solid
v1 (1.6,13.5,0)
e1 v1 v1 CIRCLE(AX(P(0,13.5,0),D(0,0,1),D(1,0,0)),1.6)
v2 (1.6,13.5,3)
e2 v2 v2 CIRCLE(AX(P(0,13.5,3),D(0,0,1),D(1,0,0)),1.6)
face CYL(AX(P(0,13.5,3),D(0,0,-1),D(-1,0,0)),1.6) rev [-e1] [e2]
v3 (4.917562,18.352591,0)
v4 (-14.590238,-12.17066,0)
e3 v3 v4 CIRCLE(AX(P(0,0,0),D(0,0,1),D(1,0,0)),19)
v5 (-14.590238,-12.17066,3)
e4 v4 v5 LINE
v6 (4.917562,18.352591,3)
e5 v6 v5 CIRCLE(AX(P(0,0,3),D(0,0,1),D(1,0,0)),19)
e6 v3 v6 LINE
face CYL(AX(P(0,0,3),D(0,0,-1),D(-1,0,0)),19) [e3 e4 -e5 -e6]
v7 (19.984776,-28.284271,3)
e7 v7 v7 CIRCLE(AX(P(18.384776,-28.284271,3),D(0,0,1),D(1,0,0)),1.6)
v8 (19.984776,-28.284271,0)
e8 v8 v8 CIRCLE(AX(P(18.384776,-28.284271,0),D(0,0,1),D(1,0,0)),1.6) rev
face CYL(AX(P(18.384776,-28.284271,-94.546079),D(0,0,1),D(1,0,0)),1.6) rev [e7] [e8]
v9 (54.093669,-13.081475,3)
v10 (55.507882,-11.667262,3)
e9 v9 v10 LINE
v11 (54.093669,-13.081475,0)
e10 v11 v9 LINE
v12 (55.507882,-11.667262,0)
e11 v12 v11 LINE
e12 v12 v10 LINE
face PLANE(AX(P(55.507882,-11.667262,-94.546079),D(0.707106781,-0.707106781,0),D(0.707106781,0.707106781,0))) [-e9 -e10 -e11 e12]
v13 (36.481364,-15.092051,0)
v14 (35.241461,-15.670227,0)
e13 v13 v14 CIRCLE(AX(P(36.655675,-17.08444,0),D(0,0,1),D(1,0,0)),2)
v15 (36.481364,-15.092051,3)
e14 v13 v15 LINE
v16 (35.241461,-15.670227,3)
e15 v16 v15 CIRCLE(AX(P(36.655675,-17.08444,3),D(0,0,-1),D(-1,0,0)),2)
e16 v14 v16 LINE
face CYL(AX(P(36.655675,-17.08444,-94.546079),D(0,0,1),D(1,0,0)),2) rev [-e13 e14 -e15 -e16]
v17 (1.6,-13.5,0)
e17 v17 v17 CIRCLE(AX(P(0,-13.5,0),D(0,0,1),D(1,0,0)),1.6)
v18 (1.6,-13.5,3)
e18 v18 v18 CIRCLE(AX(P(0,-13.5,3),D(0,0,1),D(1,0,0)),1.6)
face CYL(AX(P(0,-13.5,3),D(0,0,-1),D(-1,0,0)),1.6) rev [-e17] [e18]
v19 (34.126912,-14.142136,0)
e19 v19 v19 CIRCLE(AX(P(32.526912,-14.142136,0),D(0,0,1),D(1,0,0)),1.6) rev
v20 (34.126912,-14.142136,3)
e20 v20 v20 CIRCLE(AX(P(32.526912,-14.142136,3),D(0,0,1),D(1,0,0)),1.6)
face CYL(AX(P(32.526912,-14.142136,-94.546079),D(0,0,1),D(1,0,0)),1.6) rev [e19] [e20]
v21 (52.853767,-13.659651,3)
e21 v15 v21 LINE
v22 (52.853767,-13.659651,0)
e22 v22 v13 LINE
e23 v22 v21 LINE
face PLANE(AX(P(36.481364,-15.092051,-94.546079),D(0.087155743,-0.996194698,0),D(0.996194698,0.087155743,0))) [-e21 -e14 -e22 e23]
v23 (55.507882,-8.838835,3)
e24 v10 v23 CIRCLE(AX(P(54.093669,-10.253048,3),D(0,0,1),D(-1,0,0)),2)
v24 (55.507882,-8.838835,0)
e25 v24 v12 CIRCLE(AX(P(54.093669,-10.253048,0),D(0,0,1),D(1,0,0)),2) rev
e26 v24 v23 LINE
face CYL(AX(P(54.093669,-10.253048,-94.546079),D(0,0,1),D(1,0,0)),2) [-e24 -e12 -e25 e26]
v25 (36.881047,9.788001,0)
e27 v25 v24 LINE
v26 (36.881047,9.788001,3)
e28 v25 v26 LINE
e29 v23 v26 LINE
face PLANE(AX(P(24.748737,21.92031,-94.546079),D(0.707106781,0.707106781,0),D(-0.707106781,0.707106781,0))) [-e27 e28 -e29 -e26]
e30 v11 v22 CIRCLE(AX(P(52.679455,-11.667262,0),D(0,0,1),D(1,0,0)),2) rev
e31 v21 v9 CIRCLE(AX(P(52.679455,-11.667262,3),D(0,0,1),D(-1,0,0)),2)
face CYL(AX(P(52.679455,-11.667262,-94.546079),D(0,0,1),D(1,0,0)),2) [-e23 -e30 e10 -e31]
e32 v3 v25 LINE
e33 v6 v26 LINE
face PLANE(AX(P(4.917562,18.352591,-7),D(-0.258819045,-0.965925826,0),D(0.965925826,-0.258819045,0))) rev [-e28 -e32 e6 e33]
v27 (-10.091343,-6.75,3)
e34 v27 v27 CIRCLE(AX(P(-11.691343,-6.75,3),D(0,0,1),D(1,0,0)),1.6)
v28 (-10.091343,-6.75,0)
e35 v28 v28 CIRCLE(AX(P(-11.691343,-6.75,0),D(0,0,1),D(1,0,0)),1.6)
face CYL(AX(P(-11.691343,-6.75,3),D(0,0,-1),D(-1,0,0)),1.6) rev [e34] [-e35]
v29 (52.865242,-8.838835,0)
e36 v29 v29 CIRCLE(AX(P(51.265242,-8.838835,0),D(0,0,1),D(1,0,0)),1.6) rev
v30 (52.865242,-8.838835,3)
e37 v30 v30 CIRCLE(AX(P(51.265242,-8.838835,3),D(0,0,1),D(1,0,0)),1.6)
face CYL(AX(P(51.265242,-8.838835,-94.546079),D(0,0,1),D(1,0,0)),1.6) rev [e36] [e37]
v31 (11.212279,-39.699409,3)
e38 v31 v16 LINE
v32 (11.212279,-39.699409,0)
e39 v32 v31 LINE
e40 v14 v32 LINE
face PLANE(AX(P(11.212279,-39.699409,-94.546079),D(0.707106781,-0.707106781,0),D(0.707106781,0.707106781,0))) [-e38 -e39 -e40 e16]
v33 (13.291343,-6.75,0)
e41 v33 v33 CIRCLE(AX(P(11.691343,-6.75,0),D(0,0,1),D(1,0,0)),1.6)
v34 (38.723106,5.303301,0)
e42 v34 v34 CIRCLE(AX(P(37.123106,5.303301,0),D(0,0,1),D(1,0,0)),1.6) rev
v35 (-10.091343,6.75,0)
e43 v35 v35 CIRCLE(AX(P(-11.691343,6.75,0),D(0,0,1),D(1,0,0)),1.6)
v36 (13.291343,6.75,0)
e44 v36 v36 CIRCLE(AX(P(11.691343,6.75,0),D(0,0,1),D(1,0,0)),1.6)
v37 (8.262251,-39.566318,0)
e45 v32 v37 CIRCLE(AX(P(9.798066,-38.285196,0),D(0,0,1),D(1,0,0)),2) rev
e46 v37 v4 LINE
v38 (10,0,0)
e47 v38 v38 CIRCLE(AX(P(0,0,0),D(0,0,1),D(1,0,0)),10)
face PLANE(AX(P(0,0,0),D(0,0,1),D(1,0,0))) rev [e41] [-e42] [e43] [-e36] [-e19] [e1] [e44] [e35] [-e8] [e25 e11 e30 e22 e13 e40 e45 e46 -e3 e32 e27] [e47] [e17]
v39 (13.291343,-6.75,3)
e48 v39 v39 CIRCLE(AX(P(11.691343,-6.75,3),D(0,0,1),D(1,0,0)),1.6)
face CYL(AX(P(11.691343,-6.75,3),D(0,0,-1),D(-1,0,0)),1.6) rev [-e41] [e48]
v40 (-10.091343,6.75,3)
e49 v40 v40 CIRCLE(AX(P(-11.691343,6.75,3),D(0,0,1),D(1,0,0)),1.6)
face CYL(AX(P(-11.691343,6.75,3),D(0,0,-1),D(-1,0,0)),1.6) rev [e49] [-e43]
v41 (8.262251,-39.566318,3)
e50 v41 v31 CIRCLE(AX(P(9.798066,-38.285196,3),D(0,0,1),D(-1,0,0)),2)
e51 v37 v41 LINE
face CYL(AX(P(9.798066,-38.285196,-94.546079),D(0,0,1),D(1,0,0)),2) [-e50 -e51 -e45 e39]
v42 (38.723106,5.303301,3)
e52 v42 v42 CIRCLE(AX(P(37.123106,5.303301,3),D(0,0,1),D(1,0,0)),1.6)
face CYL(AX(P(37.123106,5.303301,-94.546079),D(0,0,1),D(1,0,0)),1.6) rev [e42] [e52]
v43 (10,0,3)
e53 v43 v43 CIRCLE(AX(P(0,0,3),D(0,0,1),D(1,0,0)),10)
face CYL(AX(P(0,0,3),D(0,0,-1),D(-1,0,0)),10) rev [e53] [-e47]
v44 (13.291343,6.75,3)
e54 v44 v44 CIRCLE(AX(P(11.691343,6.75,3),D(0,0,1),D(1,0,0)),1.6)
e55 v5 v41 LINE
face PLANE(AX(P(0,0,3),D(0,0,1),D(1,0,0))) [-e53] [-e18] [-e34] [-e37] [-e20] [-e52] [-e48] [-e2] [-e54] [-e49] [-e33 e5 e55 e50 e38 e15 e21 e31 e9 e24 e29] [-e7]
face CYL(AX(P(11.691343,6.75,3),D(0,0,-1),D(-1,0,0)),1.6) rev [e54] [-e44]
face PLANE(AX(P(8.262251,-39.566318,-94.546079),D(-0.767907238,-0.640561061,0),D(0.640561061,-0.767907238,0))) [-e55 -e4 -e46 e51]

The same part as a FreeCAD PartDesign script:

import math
import FreeCAD as App
import Part
import Sketcher
from FreeCAD import Vector
Q = App.Units.Quantity

doc = App.newDocument("Part")
body = doc.addObject("PartDesign::Body", "Body")

# Sketch on XY plane
sketch1 = body.newObject("Sketcher::SketchObject", "Sketch")
sketch1.AttachmentSupport = (doc.getObject("XY_Plane"), [""])
sketch1.MapMode = "FlatFace"
sketch1.addGeometry(Part.Circle(Vector(0, 0, 0), Vector(0, 0, 1), 19), False)
sketch1.addGeometry(Part.Circle(Vector(-11.691343, -6.75, 0), Vector(0, 0, 1), 1.6), False)
sketch1.addGeometry(Part.Circle(Vector(0, -13.5, 0), Vector(0, 0, 1), 1.6), False)
sketch1.addGeometry(Part.Circle(Vector(11.691343, -6.75, 0), Vector(0, 0, 1), 1.6), False)
sketch1.addGeometry(Part.Circle(Vector(-11.691343, 6.75, 0), Vector(0, 0, 1), 1.6), False)
sketch1.addGeometry(Part.Circle(Vector(0, 0, 0), Vector(0, 0, 1), 10), False)
sketch1.addGeometry(Part.Circle(Vector(11.691343, 6.75, 0), Vector(0, 0, 1), 1.6), False)
sketch1.addGeometry(Part.Circle(Vector(0, 13.5, 0), Vector(0, 0, 1), 1.6), False)
sketch1.addConstraint(Sketcher.Constraint("Coincident", 0, 3, -1, 1))
sketch1.addConstraint(Sketcher.Constraint("Coincident", 5, 3, -1, 1))
sketch1.addConstraint(Sketcher.Constraint("Equal", 1, 2))
sketch1.addConstraint(Sketcher.Constraint("Equal", 2, 3))
sketch1.addConstraint(Sketcher.Constraint("Equal", 3, 4))
sketch1.addConstraint(Sketcher.Constraint("Equal", 4, 6))
sketch1.addConstraint(Sketcher.Constraint("Equal", 6, 7))
sketch1.addConstraint(Sketcher.Constraint("Symmetric", 3, 3, 4, 3, -1, 1))
sketch1.addConstraint(Sketcher.Constraint("Symmetric", 1, 3, 6, 3, -1, 1))
sketch1.addConstraint(Sketcher.Constraint("Symmetric", 2, 3, 7, 3, -1, 1))
sketch1.addConstraint(Sketcher.Constraint("Symmetric", 1, 3, 3, 3, -2))
sketch1.addConstraint(Sketcher.Constraint("PointOnObject", 2, 3, -2))
sketch1.addConstraint(Sketcher.Constraint("Diameter", 0, 38.0))
sketch1.addConstraint(Sketcher.Constraint("Diameter", 5, 20.0))
sketch1.addConstraint(Sketcher.Constraint("Diameter", 1, 3.2))
sketch1.addConstraint(Sketcher.Constraint("DistanceY", 2, 3, -1, 1, 13.5))
sketch1.addConstraint(Sketcher.Constraint("DistanceY", 1, 3, 4, 3, 13.5))
sketch1.addConstraint(Sketcher.Constraint("DistanceX", 1, 3, -1, 1, 11.691343))
pad1 = body.newObject("PartDesign::Pad", "Pad")
pad1.Profile = sketch1
pad1.Length = 3

# Sketch on XY plane
sketch2 = body.newObject("Sketcher::SketchObject", "Sketch001")
sketch2.AttachmentSupport = (doc.getObject("XY_Plane"), [""])
sketch2.MapMode = "FlatFace"
sketch2.addGeometry(Part.LineSegment(Vector(55.507882, -8.838835, 0), Vector(24.748737, 21.92031, 0)), False)
sketch2.addGeometry(Part.ArcOfCircle(Part.Circle(Vector(23.334524, 20.506097, 0), Vector(0, 0, 1), 2), math.radians(45), math.radians(135)), False)
sketch2.addGeometry(Part.LineSegment(Vector(21.92031, 21.92031, 0), Vector(13.435029, 13.435029, 0)), False)
sketch2.addGeometry(Part.ArcOfCircle(Part.Circle(Vector(0, 0, 0), Vector(0, 0, 1), 19), math.radians(-140.166331), math.radians(45)), False)
sketch2.addGeometry(Part.LineSegment(Vector(-14.590238, -12.17066, 0), Vector(8.262251, -39.566318, 0)), False)
sketch2.addGeometry(Part.ArcOfCircle(Part.Circle(Vector(9.798066, -38.285196, 0), Vector(0, 0, 1), 2), math.radians(-140.166331), math.radians(-45)), False)
sketch2.addGeometry(Part.LineSegment(Vector(11.212279, -39.699409, 0), Vector(35.241461, -15.670227, 0)), False)
sketch2.addGeometry(Part.ArcOfCircle(Part.Circle(Vector(36.655675, -17.08444, 0), Vector(0, 0, 1), 2), math.radians(95), math.radians(135)), False)
sketch2.addGeometry(Part.LineSegment(Vector(36.481364, -15.092051, 0), Vector(52.853767, -13.659651, 0)), False)
sketch2.addGeometry(Part.ArcOfCircle(Part.Circle(Vector(52.679455, -11.667262, 0), Vector(0, 0, 1), 2), math.radians(-85), math.radians(-45)), False)
sketch2.addGeometry(Part.LineSegment(Vector(54.093669, -13.081475, 0), Vector(55.507882, -11.667262, 0)), False)
sketch2.addGeometry(Part.ArcOfCircle(Part.Circle(Vector(54.093669, -10.253048, 0), Vector(0, 0, 1), 2), math.radians(-45), math.radians(45)), False)
sketch2.addGeometry(Part.Circle(Vector(18.384776, -28.284271, 0), Vector(0, 0, 1), 1.6), False)
sketch2.addGeometry(Part.Circle(Vector(32.526912, -14.142136, 0), Vector(0, 0, 1), 1.6), False)
sketch2.addGeometry(Part.Circle(Vector(51.265242, -8.838835, 0), Vector(0, 0, 1), 1.6), False)
sketch2.addGeometry(Part.Circle(Vector(37.123106, 5.303301, 0), Vector(0, 0, 1), 1.6), False)
sketch2.addConstraint(Sketcher.Constraint("Tangent", 0, 2, 1, 1))
sketch2.addConstraint(Sketcher.Constraint("Tangent", 1, 2, 2, 1))
sketch2.addConstraint(Sketcher.Constraint("Coincident", 2, 2, 3, 2))
sketch2.addConstraint(Sketcher.Constraint("Tangent", 3, 1, 4, 1))
sketch2.addConstraint(Sketcher.Constraint("Tangent", 4, 2, 5, 1))
sketch2.addConstraint(Sketcher.Constraint("Tangent", 5, 2, 6, 1))
sketch2.addConstraint(Sketcher.Constraint("Tangent", 6, 2, 7, 2))
sketch2.addConstraint(Sketcher.Constraint("Tangent", 7, 1, 8, 1))
sketch2.addConstraint(Sketcher.Constraint("Tangent", 8, 2, 9, 1))
sketch2.addConstraint(Sketcher.Constraint("Tangent", 9, 2, 10, 1))
sketch2.addConstraint(Sketcher.Constraint("Tangent", 10, 2, 11, 1))
sketch2.addConstraint(Sketcher.Constraint("Tangent", 11, 2, 0, 1))
sketch2.addConstraint(Sketcher.Constraint("Coincident", 3, 3, -1, 1))
sketch2.addConstraint(Sketcher.Constraint("Equal", 1, 5))
sketch2.addConstraint(Sketcher.Constraint("Equal", 5, 7))
sketch2.addConstraint(Sketcher.Constraint("Equal", 7, 9))
sketch2.addConstraint(Sketcher.Constraint("Equal", 9, 11))
sketch2.addConstraint(Sketcher.Constraint("Equal", 12, 13))
sketch2.addConstraint(Sketcher.Constraint("Equal", 13, 14))
sketch2.addConstraint(Sketcher.Constraint("Equal", 14, 15))
sketch2.addConstraint(Sketcher.Constraint("Perpendicular", 0, 2))
sketch2.addConstraint(Sketcher.Constraint("Parallel", 2, 6))
sketch2.addConstraint(Sketcher.Constraint("Parallel", 6, 10))
sketch2.addConstraint(Sketcher.Constraint("Horizontal", 0, 2, 1, 2))
sketch2.addConstraint(Sketcher.Constraint("Horizontal", 9, 3, 10, 2))
sketch2.addConstraint(Sketcher.Constraint("Horizontal", 14, 3, 11, 2))
sketch2.addConstraint(Sketcher.Constraint("Radius", 1, 2.0))
sketch2.addConstraint(Sketcher.Constraint("Radius", 3, 19.0))
sketch2.addConstraint(Sketcher.Constraint("Diameter", 12, 3.2))
sketch2.addConstraint(Sketcher.Constraint("Angle", 8, Q("5 deg")))
sketch2.addConstraint(Sketcher.Constraint("Distance", 2, 12.0))
sketch2.addConstraint(Sketcher.Constraint("Distance", 0, 43.5))
sketch2.addConstraint(Sketcher.Constraint("DistanceY", -1, 1, 15, 3, 5.303301))
sketch2.addConstraint(Sketcher.Constraint("DistanceX", 12, 3, 7, 3, 18.270899))
sketch2.addConstraint(Sketcher.Constraint("DistanceY", 13, 3, 14, 3, 5.303301))
sketch2.addConstraint(Sketcher.Constraint("DistanceX", 1, 2, 13, 3, 10.606602))
sketch2.addConstraint(Sketcher.Constraint("DistanceY", 7, 1, 8, 2, 1.4324))
sketch2.addConstraint(Sketcher.Constraint("Distance", 4, 35.675738))
sketch2.addConstraint(Sketcher.Constraint("DistanceY", 7, 3, -1, 1, 17.08444))
sketch2.addConstraint(Sketcher.Constraint("DistanceY", 12, 3, -1, 1, 28.284271))
sketch2.addConstraint(Sketcher.Constraint("DistanceX", -1, 1, 14, 3, 51.265242))
sketch2.addConstraint(Sketcher.Constraint("DistanceX", 7, 3, 15, 3, 0.467431))
pad2 = body.newObject("PartDesign::Pad", "Pad001")
pad2.Profile = sketch2
pad2.Length = 3

# Sketch on XY plane
sketch3 = body.newObject("Sketcher::SketchObject", "Sketch002")
sketch3.AttachmentSupport = (doc.getObject("XY_Plane"), [""])
sketch3.MapMode = "FlatFace"
sketch3.AttachmentOffset = App.Placement(Vector(0, 0, -7), App.Rotation())
sketch3.addGeometry(Part.LineSegment(Vector(21.92031, 21.92031, 0), Vector(15.513435, 15.513435, 0)), False)
sketch3.addGeometry(Part.LineSegment(Vector(15.513435, 15.513435, 0), Vector(36.881047, 9.788001, 0)), False)
sketch3.addGeometry(Part.LineSegment(Vector(36.881047, 9.788001, 0), Vector(24.748737, 21.92031, 0)), False)
sketch3.addGeometry(Part.ArcOfCircle(Part.Circle(Vector(23.334524, 20.506097, 0), Vector(0, 0, 1), 2), math.radians(45), math.radians(135)), False)
sketch3.addConstraint(Sketcher.Constraint("Coincident", 0, 2, 1, 1))
sketch3.addConstraint(Sketcher.Constraint("Coincident", 1, 2, 2, 1))
sketch3.addConstraint(Sketcher.Constraint("Tangent", 2, 2, 3, 1))
sketch3.addConstraint(Sketcher.Constraint("Tangent", 3, 2, 0, 1))
sketch3.addConstraint(Sketcher.Constraint("Perpendicular", 0, 2))
sketch3.addConstraint(Sketcher.Constraint("Horizontal", 2, 2, 3, 2))
sketch3.addConstraint(Sketcher.Constraint("Radius", 3, 2.0))
sketch3.addConstraint(Sketcher.Constraint("Angle", 1, Q("-15 deg")))
sketch3.addConstraint(Sketcher.Constraint("DistanceY", -1, 1, 1, 2, 9.788001))
sketch3.addConstraint(Sketcher.Constraint("Distance", 0, 9.06069))
sketch3.addConstraint(Sketcher.Constraint("DistanceX", -1, 1, 3, 2, 21.92031))
pocket1 = body.newObject("PartDesign::Pocket", "Pocket")
pocket1.Profile = sketch3
pocket1.Length = 10
pocket1.Reversed = True

# Sketch on XY plane
sketch4 = body.newObject("Sketcher::SketchObject", "Sketch003")
sketch4.AttachmentSupport = (doc.getObject("XY_Plane"), [""])
sketch4.MapMode = "FlatFace"
sketch4.addGeometry(Part.LineSegment(Vector(15.513435, 15.513435, 0), Vector(4.917562, 18.352591, 0)), False)
sketch4.addGeometry(Part.ArcOfCircle(Part.Circle(Vector(0, 0, 0), Vector(0, 0, 1), 19), math.radians(45), math.radians(75)), False)
sketch4.addGeometry(Part.LineSegment(Vector(13.435029, 13.435029, 0), Vector(15.513435, 15.513435, 0)), False)
sketch4.addConstraint(Sketcher.Constraint("Tangent", 0, 2, 1, 2))
sketch4.addConstraint(Sketcher.Constraint("Coincident", 1, 1, 2, 1))
sketch4.addConstraint(Sketcher.Constraint("Coincident", 2, 2, 0, 1))
sketch4.addConstraint(Sketcher.Constraint("Coincident", 1, 3, -1, 1))
sketch4.addConstraint(Sketcher.Constraint("Radius", 1, 19.0))
sketch4.addConstraint(Sketcher.Constraint("Angle", 0, Q("165 deg")))
sketch4.addConstraint(Sketcher.Constraint("Angle", 2, Q("45 deg")))
sketch4.addConstraint(Sketcher.Constraint("Distance", 2, 2.93931))
pad3 = body.newObject("PartDesign::Pad", "Pad002")
pad3.Profile = sketch4
pad3.Length = 3

doc.recompute()
